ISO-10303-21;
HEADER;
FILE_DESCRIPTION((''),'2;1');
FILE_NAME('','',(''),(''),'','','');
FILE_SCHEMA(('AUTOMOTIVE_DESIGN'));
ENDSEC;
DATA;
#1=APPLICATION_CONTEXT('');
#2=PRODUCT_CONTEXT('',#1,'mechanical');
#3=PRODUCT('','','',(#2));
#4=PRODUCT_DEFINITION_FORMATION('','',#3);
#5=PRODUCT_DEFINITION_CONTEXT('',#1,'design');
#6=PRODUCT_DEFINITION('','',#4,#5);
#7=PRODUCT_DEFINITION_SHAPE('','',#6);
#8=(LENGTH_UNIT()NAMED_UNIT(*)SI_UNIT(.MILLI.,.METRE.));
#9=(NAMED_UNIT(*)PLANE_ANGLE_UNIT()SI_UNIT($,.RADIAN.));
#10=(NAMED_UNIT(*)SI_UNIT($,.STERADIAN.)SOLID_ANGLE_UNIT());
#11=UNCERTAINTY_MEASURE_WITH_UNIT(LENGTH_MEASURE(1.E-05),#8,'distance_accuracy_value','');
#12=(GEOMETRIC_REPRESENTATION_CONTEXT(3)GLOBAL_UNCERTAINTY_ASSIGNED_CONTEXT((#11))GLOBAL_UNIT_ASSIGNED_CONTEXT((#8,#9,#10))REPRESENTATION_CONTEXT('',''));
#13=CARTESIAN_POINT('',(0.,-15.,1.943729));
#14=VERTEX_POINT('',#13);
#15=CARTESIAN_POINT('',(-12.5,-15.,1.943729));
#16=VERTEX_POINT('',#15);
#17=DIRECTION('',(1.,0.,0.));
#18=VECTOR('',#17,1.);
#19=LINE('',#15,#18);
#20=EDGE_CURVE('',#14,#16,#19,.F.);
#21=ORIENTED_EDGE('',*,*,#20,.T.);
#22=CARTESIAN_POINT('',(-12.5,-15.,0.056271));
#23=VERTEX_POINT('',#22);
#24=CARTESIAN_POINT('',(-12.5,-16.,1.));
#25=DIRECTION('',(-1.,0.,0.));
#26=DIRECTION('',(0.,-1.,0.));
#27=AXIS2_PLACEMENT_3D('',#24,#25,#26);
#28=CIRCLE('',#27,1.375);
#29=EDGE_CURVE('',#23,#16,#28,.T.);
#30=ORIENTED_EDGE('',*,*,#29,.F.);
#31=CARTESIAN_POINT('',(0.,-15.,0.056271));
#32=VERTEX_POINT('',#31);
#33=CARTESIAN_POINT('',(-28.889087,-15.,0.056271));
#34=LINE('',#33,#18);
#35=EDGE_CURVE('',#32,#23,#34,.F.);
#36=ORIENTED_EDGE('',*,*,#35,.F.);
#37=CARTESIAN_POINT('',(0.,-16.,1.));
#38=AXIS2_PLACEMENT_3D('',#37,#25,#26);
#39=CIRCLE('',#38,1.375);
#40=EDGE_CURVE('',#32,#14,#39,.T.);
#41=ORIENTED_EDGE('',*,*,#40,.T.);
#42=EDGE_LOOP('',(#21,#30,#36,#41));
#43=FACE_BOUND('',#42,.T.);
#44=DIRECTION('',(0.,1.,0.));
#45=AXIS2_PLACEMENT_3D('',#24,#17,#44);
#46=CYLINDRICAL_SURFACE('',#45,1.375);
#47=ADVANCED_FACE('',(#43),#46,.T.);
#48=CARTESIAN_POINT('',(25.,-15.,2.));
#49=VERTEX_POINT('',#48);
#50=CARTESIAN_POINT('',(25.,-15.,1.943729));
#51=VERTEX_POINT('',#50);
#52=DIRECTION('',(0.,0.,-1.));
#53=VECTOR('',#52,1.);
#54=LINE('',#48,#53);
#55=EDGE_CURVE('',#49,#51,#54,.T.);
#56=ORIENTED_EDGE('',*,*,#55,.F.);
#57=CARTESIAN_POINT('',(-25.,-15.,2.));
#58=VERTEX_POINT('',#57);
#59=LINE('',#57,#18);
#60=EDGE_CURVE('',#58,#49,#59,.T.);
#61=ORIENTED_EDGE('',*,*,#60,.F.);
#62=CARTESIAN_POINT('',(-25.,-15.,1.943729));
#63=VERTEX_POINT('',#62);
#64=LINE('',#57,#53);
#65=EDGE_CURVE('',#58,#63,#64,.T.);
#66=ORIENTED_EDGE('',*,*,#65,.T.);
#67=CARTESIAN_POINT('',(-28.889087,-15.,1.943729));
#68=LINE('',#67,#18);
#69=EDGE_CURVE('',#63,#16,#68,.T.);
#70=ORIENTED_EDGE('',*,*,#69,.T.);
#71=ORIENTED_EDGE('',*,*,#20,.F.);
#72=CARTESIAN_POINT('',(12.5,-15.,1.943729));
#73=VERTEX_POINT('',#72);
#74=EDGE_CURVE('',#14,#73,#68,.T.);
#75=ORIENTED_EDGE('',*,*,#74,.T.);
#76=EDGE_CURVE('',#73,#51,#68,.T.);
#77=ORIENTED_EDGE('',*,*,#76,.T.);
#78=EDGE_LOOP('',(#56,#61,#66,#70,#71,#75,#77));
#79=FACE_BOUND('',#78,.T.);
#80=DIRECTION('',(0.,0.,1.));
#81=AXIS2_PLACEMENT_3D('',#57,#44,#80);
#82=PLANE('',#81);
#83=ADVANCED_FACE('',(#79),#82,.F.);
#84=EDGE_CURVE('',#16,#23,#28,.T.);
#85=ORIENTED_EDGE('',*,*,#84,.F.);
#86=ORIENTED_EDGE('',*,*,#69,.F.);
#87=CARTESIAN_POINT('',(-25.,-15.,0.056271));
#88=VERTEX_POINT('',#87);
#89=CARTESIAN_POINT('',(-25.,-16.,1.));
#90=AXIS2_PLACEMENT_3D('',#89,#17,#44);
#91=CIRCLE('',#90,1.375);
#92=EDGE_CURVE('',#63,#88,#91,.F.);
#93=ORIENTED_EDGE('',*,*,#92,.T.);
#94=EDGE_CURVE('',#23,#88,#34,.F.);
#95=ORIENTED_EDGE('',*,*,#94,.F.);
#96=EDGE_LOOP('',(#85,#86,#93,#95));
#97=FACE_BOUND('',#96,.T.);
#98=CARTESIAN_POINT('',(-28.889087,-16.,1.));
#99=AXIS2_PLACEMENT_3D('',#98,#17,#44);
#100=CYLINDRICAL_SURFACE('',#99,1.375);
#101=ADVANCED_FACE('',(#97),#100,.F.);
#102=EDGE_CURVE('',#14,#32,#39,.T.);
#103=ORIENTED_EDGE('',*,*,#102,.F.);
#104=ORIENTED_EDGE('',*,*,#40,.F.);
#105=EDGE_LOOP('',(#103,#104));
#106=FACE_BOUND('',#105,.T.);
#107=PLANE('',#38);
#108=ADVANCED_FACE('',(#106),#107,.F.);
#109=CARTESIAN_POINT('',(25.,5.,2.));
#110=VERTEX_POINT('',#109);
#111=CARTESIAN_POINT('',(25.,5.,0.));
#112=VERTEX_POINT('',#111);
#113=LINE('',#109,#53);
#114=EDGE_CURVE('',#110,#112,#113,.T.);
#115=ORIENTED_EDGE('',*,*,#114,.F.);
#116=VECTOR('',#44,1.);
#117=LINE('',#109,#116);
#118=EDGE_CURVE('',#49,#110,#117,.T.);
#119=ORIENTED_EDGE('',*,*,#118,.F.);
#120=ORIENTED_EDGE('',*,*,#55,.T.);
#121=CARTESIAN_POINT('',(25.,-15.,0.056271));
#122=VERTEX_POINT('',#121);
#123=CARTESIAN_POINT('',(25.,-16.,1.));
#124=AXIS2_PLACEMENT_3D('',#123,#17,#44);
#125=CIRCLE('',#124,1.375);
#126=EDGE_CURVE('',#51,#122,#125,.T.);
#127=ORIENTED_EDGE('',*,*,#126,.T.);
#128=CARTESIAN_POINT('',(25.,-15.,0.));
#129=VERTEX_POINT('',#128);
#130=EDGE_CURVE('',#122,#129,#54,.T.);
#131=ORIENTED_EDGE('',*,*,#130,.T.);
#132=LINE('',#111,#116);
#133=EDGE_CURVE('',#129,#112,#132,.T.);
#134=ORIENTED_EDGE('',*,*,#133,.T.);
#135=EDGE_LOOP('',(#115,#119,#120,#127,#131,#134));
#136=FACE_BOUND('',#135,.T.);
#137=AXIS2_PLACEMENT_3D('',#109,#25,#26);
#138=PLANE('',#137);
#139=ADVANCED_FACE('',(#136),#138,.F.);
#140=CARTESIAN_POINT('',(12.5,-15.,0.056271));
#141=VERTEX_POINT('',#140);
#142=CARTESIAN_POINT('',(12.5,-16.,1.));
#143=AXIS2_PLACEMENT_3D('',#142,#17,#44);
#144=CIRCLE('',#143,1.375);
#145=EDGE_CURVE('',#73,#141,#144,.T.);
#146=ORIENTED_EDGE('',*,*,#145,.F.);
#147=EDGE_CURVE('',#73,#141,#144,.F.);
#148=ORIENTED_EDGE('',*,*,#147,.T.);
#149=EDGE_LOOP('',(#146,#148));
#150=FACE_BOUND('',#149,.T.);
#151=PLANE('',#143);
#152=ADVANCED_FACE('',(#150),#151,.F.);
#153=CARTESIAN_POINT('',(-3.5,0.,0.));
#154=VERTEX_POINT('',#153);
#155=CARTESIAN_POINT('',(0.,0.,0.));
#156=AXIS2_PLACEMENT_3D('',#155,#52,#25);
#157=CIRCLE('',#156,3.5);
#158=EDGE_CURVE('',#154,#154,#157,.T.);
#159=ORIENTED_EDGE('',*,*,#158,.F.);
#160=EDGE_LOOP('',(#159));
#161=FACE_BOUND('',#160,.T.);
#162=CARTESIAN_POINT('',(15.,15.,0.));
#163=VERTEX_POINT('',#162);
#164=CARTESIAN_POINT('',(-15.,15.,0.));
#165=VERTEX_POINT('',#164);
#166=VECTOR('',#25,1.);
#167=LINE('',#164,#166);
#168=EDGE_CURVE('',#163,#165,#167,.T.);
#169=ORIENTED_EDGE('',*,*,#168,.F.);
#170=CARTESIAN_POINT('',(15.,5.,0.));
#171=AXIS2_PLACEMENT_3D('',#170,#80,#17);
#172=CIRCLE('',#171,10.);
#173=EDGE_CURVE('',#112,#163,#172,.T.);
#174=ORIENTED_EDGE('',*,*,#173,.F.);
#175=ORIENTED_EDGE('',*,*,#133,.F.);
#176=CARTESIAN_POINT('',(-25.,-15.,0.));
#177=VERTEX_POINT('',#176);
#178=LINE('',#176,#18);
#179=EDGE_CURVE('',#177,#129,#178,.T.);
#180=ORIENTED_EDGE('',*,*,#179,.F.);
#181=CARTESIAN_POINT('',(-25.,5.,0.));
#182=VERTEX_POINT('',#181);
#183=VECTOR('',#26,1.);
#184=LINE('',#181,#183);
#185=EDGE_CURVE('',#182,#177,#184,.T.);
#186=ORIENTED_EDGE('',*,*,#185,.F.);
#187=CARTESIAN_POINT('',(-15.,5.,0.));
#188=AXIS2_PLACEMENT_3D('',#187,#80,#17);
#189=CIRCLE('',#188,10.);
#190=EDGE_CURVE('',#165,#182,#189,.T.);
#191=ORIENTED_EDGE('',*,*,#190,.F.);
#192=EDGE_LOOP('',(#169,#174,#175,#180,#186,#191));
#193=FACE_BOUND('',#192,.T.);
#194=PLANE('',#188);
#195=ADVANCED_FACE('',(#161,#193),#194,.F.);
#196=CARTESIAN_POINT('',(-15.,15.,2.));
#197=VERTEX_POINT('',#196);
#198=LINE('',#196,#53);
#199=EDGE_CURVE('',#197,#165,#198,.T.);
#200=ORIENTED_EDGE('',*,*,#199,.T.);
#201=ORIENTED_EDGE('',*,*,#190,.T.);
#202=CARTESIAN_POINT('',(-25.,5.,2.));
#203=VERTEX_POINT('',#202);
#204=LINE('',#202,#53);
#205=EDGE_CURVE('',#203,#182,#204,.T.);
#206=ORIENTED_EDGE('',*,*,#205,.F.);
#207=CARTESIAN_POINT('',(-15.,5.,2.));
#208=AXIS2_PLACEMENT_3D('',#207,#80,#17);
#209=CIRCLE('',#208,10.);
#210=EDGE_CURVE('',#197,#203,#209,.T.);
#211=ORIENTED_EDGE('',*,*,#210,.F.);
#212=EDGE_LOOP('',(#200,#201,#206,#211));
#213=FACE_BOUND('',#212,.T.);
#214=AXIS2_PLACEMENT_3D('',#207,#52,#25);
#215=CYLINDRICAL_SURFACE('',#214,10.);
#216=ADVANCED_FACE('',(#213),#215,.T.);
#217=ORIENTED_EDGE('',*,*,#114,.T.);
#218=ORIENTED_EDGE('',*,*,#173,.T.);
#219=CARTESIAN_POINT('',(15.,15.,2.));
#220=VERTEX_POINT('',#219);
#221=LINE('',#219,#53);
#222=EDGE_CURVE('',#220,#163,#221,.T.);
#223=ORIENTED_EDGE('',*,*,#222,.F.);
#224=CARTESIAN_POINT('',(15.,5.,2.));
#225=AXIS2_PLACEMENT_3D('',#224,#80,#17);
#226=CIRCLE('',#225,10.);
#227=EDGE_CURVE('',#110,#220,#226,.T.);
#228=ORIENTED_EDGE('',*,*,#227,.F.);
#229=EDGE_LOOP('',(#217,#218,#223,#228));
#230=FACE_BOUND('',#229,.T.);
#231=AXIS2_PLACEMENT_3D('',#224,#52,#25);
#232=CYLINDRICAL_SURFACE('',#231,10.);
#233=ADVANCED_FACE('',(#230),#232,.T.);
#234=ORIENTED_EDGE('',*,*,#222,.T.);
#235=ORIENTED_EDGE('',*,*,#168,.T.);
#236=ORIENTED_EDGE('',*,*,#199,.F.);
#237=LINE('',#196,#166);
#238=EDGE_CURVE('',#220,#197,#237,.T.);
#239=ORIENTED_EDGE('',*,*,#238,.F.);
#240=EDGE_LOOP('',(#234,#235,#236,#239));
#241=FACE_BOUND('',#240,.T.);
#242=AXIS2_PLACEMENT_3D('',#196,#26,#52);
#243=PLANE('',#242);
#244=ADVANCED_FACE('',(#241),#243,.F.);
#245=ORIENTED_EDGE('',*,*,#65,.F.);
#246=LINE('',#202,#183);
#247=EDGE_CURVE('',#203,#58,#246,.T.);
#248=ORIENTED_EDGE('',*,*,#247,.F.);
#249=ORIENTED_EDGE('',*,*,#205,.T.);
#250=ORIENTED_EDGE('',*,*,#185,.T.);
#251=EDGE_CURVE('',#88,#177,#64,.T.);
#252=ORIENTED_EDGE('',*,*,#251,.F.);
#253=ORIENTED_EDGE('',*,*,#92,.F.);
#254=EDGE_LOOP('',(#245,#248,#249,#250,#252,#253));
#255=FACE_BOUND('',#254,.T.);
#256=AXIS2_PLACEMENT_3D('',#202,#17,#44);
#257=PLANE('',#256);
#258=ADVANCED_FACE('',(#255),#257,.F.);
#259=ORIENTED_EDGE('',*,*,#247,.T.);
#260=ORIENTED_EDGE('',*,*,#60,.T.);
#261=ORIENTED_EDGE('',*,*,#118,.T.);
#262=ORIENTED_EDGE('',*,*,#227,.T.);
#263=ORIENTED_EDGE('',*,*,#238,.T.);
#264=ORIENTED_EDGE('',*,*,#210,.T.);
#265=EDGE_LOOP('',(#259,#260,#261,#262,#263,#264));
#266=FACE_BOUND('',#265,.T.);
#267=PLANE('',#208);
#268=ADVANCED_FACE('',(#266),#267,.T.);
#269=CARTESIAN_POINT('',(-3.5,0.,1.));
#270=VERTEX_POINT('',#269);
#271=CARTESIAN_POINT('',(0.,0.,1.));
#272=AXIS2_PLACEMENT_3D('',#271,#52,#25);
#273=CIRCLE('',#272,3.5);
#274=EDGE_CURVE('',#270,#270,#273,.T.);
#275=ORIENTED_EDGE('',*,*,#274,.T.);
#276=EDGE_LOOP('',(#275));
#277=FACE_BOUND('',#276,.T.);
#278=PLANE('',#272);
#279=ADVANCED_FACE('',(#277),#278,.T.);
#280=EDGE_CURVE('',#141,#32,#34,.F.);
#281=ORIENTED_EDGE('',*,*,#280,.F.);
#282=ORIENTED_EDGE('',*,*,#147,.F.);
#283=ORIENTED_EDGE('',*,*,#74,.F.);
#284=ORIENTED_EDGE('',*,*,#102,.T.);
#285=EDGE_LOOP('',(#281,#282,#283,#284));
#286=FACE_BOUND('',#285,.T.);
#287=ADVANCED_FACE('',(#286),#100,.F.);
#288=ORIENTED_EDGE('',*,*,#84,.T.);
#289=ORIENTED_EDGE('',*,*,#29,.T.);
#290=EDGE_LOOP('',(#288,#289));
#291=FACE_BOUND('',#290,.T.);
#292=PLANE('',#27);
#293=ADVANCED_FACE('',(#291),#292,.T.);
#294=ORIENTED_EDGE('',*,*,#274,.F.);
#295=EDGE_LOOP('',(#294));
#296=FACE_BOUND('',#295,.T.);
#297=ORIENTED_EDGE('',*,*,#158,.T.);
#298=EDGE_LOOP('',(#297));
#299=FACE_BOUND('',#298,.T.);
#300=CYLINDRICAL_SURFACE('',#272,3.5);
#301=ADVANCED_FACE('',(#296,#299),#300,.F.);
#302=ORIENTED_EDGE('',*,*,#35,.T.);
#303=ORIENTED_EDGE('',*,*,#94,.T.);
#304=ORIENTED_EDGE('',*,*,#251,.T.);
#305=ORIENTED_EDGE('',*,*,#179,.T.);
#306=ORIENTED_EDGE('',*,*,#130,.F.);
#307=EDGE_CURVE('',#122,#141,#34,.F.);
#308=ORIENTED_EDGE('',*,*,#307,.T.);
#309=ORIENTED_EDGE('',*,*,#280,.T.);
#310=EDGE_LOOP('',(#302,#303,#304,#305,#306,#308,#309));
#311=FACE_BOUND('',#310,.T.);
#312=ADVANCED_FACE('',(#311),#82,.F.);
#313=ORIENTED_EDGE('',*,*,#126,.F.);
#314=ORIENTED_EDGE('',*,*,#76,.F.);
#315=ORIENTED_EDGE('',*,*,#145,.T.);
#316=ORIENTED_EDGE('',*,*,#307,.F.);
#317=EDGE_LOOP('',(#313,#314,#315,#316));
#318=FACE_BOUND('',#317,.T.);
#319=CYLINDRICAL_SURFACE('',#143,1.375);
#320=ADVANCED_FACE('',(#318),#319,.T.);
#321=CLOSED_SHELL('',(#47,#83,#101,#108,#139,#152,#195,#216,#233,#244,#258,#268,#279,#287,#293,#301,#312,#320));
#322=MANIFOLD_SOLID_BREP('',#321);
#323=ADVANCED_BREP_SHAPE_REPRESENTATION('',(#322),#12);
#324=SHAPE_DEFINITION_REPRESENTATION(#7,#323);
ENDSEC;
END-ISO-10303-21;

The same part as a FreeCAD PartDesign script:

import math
import FreeCAD as App
import Part
import Sketcher
from FreeCAD import Vector
Q = App.Units.Quantity

doc = App.newDocument("Part")
body = doc.addObject("PartDesign::Body", "Body")

# Sketch on XY plane
sketch1 = body.newObject("Sketcher::SketchObject", "Sketch")
sketch1.AttachmentSupport = (doc.getObject("XY_Plane"), [""])
sketch1.MapMode = "FlatFace"
sketch1.addGeometry([
    Part.LineSegment(Vector(15, 15, 0), Vector(-15, 15, 0)),  # 0
    Part.ArcOfCircle(Part.Circle(Vector(-15, 5, 0), Vector(0, 0, 1), 10), math.radians(90), math.radians(180)),  # 1
    Part.LineSegment(Vector(-25, 5, 0), Vector(-25, -15, 0)),  # 2
    Part.LineSegment(Vector(-25, -15, 0), Vector(25, -15, 0)),  # 3
    Part.LineSegment(Vector(25, -15, 0), Vector(25, 5, 0)),  # 4
    Part.ArcOfCircle(Part.Circle(Vector(15, 5, 0), Vector(0, 0, 1), 10), math.radians(0), math.radians(90)),  # 5
], False)
sketch1.addConstraint([
    Sketcher.Constraint("Tangent", 0, 2, 1, 1),
    Sketcher.Constraint("Tangent", 1, 2, 2, 1),
    Sketcher.Constraint("Coincident", 2, 2, 3, 1),
    Sketcher.Constraint("Coincident", 3, 2, 4, 1),
    Sketcher.Constraint("Tangent", 4, 2, 5, 1),
    Sketcher.Constraint("Tangent", 5, 2, 0, 1),
    Sketcher.Constraint("Horizontal", 0),
    Sketcher.Constraint("Vertical", 2),
    Sketcher.Constraint("Horizontal", 3),
    Sketcher.Constraint("Vertical", 4),
    Sketcher.Constraint("Equal", 1, 5),
    Sketcher.Constraint("Radius", 1, Q("10 mm")),
    Sketcher.Constraint("DistanceX", 0, 2, 0, 1, Q("30 mm")),
    Sketcher.Constraint("DistanceY", 2, 2, 2, 1, Q("20 mm")),
    Sketcher.Constraint("DistanceX", 1, 3, -1, 1, Q("15 mm")),
    Sketcher.Constraint("DistanceY", -1, 1, 1, 3, Q("5 mm")),
])
pad1 = body.newObject("PartDesign::Pad", "Pad")
pad1.Profile = sketch1
pad1.Length = 2

# Sketch on YZ plane
sketch2 = body.newObject("Sketcher::SketchObject", "Sketch001")
sketch2.AttachmentSupport = (doc.getObject("YZ_Plane"), [""])
sketch2.MapMode = "FlatFace"
sketch2.AttachmentOffset = App.Placement(Vector(0, 0, 25), App.Rotation())
sketch2.addGeometry(Part.Circle(Vector(-16, 1, 0), Vector(0, 0, 1), 1.4), False)
sketch2.addConstraint([
    Sketcher.Constraint("Diameter", 0, Q("2.75 mm")),
    Sketcher.Constraint("DistanceX", 0, 3, -1, 1, Q("16 mm")),
    Sketcher.Constraint("DistanceY", -1, 1, 0, 3, Q("1 mm")),
])
pocket1 = body.newObject("PartDesign::Pocket", "Pocket")
pocket1.Profile = sketch2
pocket1.Length = 50

# Sketch on YZ plane
sketch3 = body.newObject("Sketcher::SketchObject", "Sketch002")
sketch3.AttachmentSupport = (doc.getObject("YZ_Plane"), [""])
sketch3.MapMode = "FlatFace"
sketch3.AttachmentOffset = App.Placement(Vector(0, 0, 25), App.Rotation())
sketch3.addGeometry(Part.Circle(Vector(-16, 1, 0), Vector(0, 0, 1), 1.4), False)
sketch3.addConstraint([
    Sketcher.Constraint("Diameter", 0, Q("2.75 mm")),
    Sketcher.Constraint("DistanceX", 0, 3, -1, 1, Q("16 mm")),
    Sketcher.Constraint("DistanceY", -1, 1, 0, 3, Q("1 mm")),
])
pad2 = body.newObject("PartDesign::Pad", "Pad001")
pad2.Profile = sketch3
pad2.Length = 12.5
pad2.Reversed = True

# Sketch on YZ plane
sketch4 = body.newObject("Sketcher::SketchObject", "Sketch003")
sketch4.AttachmentSupport = (doc.getObject("YZ_Plane"), [""])
sketch4.MapMode = "FlatFace"
sketch4.addGeometry(Part.Circle(Vector(-16, 1, 0), Vector(0, 0, 1), 1.4), False)
sketch4.addConstraint([
    Sketcher.Constraint("Diameter", 0, Q("2.75 mm")),
    Sketcher.Constraint("DistanceX", 0, 3, -1, 1, Q("16 mm")),
    Sketcher.Constraint("DistanceY", -1, 1, 0, 3, Q("1 mm")),
])
pad3 = body.newObject("PartDesign::Pad", "Pad002")
pad3.Profile = sketch4
pad3.Length = 12.5
pad3.Reversed = True

# Sketch on XY plane
sketch5 = body.newObject("Sketcher::SketchObject", "Sketch004")
sketch5.AttachmentSupport = (doc.getObject("XY_Plane"), [""])
sketch5.MapMode = "FlatFace"
sketch5.addGeometry(Part.Circle(Vector(0, 0, 0), Vector(0, 0, 1), 3.5), False)
sketch5.addConstraint([
    Sketcher.Constraint("Coincident", 0, 3, -1, 1),
    Sketcher.Constraint("Diameter", 0, Q("7 mm")),
])
pocket2 = body.newObject("PartDesign::Pocket", "Pocket001")
pocket2.Profile = sketch5
pocket2.Length = 1
pocket2.Reversed = True

doc.recompute()
